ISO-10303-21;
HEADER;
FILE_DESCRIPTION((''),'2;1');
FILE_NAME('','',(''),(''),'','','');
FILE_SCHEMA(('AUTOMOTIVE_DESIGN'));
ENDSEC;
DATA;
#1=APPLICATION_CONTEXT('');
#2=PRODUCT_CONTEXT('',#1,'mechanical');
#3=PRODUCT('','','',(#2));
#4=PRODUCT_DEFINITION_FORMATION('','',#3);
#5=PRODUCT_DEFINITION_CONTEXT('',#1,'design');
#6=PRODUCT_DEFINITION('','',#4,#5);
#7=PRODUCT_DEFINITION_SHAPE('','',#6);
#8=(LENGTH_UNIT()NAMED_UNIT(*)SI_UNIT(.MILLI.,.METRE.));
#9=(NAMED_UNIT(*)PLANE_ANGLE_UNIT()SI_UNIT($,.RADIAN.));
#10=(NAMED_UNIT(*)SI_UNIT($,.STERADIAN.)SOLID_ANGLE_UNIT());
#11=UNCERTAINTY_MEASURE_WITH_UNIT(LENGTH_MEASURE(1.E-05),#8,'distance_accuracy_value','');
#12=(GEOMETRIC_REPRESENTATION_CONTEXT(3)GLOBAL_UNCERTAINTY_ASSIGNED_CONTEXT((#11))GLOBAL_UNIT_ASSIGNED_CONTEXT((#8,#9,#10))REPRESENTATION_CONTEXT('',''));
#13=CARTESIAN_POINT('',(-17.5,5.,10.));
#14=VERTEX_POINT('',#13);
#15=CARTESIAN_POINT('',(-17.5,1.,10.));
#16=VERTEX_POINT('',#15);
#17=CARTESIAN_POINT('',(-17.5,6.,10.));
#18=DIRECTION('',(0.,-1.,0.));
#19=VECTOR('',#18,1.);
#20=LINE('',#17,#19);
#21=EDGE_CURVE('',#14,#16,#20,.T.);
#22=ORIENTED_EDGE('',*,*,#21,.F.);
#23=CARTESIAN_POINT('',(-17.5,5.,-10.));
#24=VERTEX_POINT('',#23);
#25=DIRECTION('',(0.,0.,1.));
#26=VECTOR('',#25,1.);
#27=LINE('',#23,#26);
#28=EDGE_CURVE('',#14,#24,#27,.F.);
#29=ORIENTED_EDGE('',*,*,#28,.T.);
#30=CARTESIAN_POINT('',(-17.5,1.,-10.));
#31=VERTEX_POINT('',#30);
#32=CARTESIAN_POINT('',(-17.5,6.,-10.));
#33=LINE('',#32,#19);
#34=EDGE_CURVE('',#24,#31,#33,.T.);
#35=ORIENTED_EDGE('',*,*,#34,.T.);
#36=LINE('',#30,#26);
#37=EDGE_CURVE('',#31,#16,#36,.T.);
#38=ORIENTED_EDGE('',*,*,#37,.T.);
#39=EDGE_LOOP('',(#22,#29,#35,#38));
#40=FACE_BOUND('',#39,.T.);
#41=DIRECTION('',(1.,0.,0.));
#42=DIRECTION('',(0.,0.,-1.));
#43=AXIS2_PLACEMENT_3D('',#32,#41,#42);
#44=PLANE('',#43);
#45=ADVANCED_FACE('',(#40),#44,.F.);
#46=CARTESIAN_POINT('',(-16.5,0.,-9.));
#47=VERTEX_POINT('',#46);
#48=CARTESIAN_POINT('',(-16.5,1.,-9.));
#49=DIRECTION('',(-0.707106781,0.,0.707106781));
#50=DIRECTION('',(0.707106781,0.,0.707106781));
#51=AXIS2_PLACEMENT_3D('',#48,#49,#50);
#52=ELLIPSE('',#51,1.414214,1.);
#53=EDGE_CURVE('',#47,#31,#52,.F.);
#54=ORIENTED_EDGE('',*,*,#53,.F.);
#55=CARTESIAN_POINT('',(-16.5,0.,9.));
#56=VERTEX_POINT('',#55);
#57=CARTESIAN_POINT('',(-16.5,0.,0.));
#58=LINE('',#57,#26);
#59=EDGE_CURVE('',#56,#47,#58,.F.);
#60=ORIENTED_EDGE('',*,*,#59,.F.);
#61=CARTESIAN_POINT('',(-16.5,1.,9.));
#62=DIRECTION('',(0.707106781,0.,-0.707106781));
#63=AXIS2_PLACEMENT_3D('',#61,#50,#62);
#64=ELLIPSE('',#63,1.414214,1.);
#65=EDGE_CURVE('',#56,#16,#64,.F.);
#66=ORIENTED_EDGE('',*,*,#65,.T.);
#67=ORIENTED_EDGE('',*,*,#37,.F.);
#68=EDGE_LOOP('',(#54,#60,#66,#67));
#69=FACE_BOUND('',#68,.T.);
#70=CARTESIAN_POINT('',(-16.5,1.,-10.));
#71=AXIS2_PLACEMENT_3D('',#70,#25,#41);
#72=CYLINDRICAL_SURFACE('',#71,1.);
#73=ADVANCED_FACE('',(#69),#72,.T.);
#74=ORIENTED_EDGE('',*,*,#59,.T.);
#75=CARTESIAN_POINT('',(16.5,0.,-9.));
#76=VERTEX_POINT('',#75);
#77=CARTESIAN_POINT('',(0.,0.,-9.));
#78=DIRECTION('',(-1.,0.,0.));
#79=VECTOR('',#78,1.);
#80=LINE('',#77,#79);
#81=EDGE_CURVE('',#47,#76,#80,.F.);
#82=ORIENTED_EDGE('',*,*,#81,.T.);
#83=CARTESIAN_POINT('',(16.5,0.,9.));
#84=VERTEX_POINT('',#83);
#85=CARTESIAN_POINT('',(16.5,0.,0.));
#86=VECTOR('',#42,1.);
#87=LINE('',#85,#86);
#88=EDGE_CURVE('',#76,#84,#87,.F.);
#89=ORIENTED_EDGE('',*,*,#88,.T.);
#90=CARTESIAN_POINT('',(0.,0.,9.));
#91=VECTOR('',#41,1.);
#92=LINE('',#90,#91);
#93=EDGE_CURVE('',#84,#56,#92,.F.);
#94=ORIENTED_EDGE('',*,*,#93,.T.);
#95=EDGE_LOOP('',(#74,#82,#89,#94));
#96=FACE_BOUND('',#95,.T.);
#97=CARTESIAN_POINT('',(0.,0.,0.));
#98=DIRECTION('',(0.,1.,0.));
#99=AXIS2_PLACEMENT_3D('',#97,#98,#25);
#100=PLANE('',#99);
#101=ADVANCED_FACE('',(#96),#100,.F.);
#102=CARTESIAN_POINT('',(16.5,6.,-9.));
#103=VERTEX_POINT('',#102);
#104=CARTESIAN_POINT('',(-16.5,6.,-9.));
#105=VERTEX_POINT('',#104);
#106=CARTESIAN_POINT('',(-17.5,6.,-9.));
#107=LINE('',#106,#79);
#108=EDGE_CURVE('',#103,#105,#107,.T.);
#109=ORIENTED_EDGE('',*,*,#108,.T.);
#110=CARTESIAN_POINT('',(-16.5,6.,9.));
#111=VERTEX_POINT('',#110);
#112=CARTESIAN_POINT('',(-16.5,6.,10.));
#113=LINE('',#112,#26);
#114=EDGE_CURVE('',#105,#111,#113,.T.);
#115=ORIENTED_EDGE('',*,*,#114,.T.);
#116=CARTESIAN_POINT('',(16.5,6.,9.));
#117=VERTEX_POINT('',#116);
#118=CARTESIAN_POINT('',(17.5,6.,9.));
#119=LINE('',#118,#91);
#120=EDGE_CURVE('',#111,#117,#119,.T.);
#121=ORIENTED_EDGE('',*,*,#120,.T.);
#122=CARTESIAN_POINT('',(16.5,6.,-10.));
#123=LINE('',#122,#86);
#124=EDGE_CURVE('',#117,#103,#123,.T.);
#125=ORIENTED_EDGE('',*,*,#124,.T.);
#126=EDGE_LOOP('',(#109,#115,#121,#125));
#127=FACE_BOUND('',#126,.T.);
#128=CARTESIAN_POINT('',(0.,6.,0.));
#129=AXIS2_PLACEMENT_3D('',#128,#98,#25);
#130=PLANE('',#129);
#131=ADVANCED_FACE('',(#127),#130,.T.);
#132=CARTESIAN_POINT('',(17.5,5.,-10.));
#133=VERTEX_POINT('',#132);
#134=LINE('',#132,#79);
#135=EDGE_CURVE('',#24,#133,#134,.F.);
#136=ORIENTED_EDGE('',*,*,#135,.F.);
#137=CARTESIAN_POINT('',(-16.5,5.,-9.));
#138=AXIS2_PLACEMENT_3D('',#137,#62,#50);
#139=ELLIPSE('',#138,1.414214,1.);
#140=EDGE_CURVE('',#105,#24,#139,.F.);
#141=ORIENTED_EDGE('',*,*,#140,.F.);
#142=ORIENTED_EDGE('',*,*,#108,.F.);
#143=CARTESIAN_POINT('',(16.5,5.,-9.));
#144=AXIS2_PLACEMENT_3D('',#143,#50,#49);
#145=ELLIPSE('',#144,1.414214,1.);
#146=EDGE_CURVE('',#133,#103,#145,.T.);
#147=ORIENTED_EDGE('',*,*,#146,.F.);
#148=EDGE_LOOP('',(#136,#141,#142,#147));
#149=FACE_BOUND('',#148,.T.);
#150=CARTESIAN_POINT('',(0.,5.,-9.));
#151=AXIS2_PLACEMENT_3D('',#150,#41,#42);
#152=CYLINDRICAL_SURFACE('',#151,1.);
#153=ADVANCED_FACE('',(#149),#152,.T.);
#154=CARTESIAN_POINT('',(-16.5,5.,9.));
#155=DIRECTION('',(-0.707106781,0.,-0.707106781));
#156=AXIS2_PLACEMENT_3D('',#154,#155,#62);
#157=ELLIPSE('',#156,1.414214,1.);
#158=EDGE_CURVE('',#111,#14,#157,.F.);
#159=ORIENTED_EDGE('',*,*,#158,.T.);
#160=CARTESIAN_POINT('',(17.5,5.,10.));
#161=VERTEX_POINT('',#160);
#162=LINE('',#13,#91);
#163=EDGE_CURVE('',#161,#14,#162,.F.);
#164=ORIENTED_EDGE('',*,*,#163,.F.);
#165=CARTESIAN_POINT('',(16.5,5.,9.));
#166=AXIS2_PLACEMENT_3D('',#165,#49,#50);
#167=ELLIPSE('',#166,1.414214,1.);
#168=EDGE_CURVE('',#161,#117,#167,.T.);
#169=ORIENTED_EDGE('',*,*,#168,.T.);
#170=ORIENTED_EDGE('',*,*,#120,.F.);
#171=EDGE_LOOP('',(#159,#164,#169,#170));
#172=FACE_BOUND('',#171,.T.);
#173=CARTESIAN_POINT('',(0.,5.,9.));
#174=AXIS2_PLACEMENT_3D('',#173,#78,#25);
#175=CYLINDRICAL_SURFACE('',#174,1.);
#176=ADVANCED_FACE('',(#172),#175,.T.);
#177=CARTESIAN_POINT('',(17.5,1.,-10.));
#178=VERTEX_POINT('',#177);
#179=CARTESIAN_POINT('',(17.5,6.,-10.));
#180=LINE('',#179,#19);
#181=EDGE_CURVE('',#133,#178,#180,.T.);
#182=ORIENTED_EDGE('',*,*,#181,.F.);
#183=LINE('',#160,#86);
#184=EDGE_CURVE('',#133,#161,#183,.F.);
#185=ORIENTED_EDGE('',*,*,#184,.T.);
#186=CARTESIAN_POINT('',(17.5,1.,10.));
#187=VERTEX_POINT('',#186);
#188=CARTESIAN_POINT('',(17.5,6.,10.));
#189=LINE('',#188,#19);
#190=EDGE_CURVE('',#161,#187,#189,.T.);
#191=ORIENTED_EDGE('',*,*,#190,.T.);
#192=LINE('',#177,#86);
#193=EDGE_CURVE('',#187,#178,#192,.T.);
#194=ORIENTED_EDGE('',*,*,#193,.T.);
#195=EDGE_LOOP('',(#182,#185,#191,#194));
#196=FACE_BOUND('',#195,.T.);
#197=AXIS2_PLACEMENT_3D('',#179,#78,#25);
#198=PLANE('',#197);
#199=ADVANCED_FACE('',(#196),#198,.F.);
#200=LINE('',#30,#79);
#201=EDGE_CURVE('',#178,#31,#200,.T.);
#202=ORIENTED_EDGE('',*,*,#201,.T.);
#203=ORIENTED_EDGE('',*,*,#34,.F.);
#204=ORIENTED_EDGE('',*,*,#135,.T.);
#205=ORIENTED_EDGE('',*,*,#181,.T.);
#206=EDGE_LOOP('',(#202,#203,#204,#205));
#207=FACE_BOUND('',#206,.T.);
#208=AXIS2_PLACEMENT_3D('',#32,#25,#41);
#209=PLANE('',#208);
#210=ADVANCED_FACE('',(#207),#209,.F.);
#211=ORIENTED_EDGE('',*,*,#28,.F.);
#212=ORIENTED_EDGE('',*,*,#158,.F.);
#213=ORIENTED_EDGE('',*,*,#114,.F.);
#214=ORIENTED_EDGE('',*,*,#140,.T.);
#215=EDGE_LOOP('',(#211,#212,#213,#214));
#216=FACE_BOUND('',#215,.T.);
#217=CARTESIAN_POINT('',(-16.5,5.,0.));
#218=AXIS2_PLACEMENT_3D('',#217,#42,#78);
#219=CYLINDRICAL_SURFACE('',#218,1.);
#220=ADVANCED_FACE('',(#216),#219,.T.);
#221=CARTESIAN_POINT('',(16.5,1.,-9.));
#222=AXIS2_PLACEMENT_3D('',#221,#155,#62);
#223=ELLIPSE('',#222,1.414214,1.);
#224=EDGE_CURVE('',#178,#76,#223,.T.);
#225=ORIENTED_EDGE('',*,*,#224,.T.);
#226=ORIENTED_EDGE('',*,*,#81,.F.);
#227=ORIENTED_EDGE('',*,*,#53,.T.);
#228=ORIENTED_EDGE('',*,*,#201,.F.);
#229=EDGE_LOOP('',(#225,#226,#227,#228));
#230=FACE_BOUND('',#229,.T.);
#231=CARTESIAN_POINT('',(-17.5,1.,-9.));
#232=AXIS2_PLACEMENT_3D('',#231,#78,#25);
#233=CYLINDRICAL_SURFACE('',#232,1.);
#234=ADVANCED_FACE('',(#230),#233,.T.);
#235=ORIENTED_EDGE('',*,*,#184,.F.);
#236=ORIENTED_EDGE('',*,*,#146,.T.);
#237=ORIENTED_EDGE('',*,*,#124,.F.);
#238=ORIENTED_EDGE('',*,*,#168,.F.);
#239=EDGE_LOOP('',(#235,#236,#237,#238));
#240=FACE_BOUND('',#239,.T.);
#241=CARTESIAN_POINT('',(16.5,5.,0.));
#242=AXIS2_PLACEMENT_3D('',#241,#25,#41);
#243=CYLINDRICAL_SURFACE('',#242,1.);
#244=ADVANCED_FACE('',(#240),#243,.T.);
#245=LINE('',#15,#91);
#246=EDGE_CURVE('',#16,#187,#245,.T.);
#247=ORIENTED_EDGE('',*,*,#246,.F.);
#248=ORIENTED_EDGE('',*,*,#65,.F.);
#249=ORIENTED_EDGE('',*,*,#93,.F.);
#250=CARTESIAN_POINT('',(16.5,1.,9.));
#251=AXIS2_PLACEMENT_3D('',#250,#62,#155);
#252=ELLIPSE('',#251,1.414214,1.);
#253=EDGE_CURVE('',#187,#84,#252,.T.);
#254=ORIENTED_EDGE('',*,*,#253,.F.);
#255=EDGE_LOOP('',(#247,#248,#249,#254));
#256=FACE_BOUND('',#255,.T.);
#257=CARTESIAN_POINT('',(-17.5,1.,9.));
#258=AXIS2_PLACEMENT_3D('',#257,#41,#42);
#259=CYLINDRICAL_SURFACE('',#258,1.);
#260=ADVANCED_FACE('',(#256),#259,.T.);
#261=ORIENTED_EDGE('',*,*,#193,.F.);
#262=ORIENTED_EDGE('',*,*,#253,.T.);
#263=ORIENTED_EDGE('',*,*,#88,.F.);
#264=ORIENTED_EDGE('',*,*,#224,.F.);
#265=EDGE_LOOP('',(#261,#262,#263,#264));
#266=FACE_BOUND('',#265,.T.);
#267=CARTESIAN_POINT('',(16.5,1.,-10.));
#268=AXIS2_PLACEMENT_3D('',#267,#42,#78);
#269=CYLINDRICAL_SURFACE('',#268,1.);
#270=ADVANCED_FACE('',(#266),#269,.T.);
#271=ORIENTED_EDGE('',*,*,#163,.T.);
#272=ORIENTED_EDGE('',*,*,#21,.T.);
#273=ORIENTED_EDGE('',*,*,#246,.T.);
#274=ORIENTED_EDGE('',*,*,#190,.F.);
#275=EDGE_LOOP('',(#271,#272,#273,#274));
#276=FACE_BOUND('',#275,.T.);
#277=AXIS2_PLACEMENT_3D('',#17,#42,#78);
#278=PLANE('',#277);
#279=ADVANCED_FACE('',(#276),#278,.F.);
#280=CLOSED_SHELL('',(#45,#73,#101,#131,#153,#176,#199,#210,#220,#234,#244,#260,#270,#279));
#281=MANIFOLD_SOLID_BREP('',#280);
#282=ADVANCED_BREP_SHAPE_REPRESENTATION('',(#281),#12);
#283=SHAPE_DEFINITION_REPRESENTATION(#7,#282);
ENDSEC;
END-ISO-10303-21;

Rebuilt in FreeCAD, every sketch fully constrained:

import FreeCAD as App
import Part
import Sketcher


def edges_at(feature, points):
    """Names of the edges that pass closest to the given points."""
    edges = feature.Shape.Edges
    near = lambda p: min(range(len(edges)), key=lambda i: edges[i].distToShape(Part.Vertex(*p))[0])
    return sorted({f"Edge{near(p) + 1}" for p in points})

doc = App.newDocument("Part")
body = doc.addObject("PartDesign::Body", "Body")

sketch1 = body.newObject("Sketcher::SketchObject", "Sketch")
sketch1.AttachmentSupport = (doc.getObject("XZ_Plane"), [""])
sketch1.MapMode = "FlatFace"
sketch1.addGeometry([
    Part.LineSegment(App.Vector(-17.5, -10, 0), App.Vector(-17.5, 10, 0)),
    Part.LineSegment(App.Vector(-17.5, 10, 0), App.Vector(17.5, 10, 0)),
    Part.LineSegment(App.Vector(17.5, 10, 0), App.Vector(17.5, -10, 0)),
    Part.LineSegment(App.Vector(17.5, -10, 0), App.Vector(-17.5, -10, 0)),
], False)
sketch1.addConstraint([
    Sketcher.Constraint("Coincident", 0, 2, 1, 1),
    Sketcher.Constraint("Coincident", 1, 2, 2, 1),
    Sketcher.Constraint("Coincident", 2, 2, 3, 1),
    Sketcher.Constraint("Coincident", 3, 2, 0, 1),
    Sketcher.Constraint("Vertical", 0),
    Sketcher.Constraint("Horizontal", 1),
    Sketcher.Constraint("Vertical", 2),
    Sketcher.Constraint("Horizontal", 3),
    Sketcher.Constraint("Symmetric", 0, 2, 2, 2, -1, 1),
    Sketcher.Constraint("DistanceX", 1, 1, 1, 2, 35.0),
    Sketcher.Constraint("DistanceY", 0, 1, 0, 2, 20.0),
])
pad1 = body.newObject("PartDesign::Pad", "Pad")
pad1.Profile = sketch1
pad1.Length = 6
pad1.Reversed = True
doc.recompute()

fillet = body.newObject("PartDesign::Fillet", "Fillet")
fillet.Base = (pad1, edges_at(pad1, [
    (-17.5, 6, 0),
    (0, 6, 10),
    (17.5, 6, 0),
    (0, 0, 10),
    (-17.5, 0, 0),
    (0, 0, -10),
    (17.5, 0, 0),
    (0, 6, -10),
]))
fillet.Radius = 1

doc.recompute()
